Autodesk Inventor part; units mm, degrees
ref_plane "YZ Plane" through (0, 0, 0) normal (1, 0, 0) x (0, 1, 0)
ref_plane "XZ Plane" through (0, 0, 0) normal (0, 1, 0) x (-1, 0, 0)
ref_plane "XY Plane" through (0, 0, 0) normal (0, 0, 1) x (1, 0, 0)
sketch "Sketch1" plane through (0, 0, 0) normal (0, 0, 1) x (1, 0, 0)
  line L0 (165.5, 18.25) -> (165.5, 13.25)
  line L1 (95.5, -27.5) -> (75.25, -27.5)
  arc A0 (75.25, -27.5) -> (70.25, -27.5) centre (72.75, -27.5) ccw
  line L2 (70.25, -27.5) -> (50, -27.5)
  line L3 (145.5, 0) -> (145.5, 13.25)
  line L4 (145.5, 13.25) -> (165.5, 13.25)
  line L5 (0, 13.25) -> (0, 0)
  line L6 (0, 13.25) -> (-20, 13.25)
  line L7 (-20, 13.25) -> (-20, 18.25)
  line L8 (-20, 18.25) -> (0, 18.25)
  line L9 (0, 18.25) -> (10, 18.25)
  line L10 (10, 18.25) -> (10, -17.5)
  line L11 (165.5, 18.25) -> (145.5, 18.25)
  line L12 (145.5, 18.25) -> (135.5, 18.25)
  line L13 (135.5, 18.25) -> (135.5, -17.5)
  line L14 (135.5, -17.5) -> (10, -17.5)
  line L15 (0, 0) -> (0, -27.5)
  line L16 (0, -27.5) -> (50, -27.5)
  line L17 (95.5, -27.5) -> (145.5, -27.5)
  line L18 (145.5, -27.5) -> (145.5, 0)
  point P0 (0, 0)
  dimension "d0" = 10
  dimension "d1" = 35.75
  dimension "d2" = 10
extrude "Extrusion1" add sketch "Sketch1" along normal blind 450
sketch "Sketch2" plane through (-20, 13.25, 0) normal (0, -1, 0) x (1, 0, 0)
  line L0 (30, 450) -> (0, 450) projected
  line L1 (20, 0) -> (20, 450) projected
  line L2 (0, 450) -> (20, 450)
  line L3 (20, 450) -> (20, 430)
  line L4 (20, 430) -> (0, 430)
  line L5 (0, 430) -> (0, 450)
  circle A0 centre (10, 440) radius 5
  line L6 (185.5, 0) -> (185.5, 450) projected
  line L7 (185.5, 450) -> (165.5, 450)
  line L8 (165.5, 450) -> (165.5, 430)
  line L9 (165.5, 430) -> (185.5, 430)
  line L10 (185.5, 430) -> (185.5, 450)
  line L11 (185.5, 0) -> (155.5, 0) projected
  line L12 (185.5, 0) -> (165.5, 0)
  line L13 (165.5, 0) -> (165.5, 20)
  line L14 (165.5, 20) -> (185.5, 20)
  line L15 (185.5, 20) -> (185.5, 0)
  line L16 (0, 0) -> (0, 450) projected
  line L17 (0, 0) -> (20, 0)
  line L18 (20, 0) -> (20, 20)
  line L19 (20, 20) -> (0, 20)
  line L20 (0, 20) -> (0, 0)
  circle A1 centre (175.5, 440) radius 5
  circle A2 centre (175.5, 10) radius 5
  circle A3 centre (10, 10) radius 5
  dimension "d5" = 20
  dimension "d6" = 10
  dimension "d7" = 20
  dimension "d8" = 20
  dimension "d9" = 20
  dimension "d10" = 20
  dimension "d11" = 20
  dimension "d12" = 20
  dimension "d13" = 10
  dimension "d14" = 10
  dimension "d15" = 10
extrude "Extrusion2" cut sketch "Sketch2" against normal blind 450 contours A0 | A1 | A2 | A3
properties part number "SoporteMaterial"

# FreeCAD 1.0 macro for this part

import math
import FreeCAD as App
import Part
import Sketcher
from FreeCAD import Vector

doc = App.newDocument("Part")
body = doc.addObject("PartDesign::Body", "Body")

sketch1 = doc.addObject("Sketcher::SketchObject", "Sketch")
body.addObject(sketch1)
sketch1.AttachmentSupport = (doc.XY_Plane, [""])
sketch1.MapMode = "FlatFace"
sketch1.addGeometry([
    Part.LineSegment(Vector(165.5, 13.2, 0), Vector(165.5, 18.2, 0)),
    Part.LineSegment(Vector(165.5, 18.2, 0), Vector(135.5, 18.2, 0)),
    Part.LineSegment(Vector(135.5, 18.2, 0), Vector(135.5, -17.5, 0)),
    Part.LineSegment(Vector(135.5, -17.5, 0), Vector(10, -17.5, 0)),
    Part.LineSegment(Vector(10, -17.5, 0), Vector(10, 18.2, 0)),
    Part.LineSegment(Vector(10, 18.2, 0), Vector(-20, 18.2, 0)),
    Part.LineSegment(Vector(-20, 18.2, 0), Vector(-20, 13.2, 0)),
    Part.LineSegment(Vector(-20, 13.2, 0), Vector(0, 13.2, 0)),
    Part.LineSegment(Vector(0, 13.2, 0), Vector(0, -27.5, 0)),
    Part.LineSegment(Vector(0, -27.5, 0), Vector(70.2, -27.5, 0)),
    Part.ArcOfCircle(Part.Circle(Vector(72.8, -27.5, 0), Vector(0, 0, 1), 2.5), math.radians(0), math.radians(180)),
    Part.LineSegment(Vector(75.2, -27.5, 0), Vector(145.5, -27.5, 0)),
    Part.LineSegment(Vector(145.5, -27.5, 0), Vector(145.5, 13.2, 0)),
    Part.LineSegment(Vector(145.5, 13.2, 0), Vector(165.5, 13.2, 0)),
], False)
sketch1.addConstraint([
    Sketcher.Constraint("Coincident", 0, 2, 1, 1),
    Sketcher.Constraint("Coincident", 1, 2, 2, 1),
    Sketcher.Constraint("Coincident", 2, 2, 3, 1),
    Sketcher.Constraint("Coincident", 3, 2, 4, 1),
    Sketcher.Constraint("Coincident", 4, 2, 5, 1),
    Sketcher.Constraint("Coincident", 5, 2, 6, 1),
    Sketcher.Constraint("Coincident", 6, 2, 7, 1),
    Sketcher.Constraint("Coincident", 7, 2, 8, 1),
    Sketcher.Constraint("Coincident", 8, 2, 9, 1),
    Sketcher.Constraint("Coincident", 9, 2, 10, 2),
    Sketcher.Constraint("Coincident", 10, 1, 11, 1),
    Sketcher.Constraint("Coincident", 11, 2, 12, 1),
    Sketcher.Constraint("Coincident", 12, 2, 13, 1),
    Sketcher.Constraint("Coincident", 13, 2, 0, 1),
    Sketcher.Constraint("Vertical", 0),
    Sketcher.Constraint("Horizontal", 1),
    Sketcher.Constraint("Vertical", 2),
    Sketcher.Constraint("Horizontal", 3),
    Sketcher.Constraint("Vertical", 4),
    Sketcher.Constraint("Horizontal", 5),
    Sketcher.Constraint("Vertical", 6),
    Sketcher.Constraint("Horizontal", 7),
    Sketcher.Constraint("Vertical", 8),
    Sketcher.Constraint("Horizontal", 9),
    Sketcher.Constraint("Horizontal", 11),
    Sketcher.Constraint("Vertical", 12),
    Sketcher.Constraint("Horizontal", 13),
    Sketcher.Constraint("PointOnObject", 7, 2, -2),
    Sketcher.Constraint("Horizontal", 1, 2, 4, 2),
    Sketcher.Constraint("Horizontal", 10, 3, 8, 2),
    Sketcher.Constraint("Horizontal", 9, 2, 10, 1),
    Sketcher.Constraint("Horizontal", 7, 2, 12, 2),
    Sketcher.Constraint("Equal", 1, 5),
    Sketcher.Constraint("Equal", 9, 11),
    Sketcher.Constraint("Equal", 7, 13),
    Sketcher.Constraint("DistanceX", -1, 1, 3, 2, 10.0),
    Sketcher.Constraint("DistanceY", 10, 3, 2, 2, 10.0),
    Sketcher.Constraint("DistanceY", 2, 2, 2, 1, 35.75),
    Sketcher.Constraint("Radius", 10, 2.5),
    Sketcher.Constraint("DistanceX", 1, 2, 1, 1, 30.0),
    Sketcher.Constraint("DistanceY", 0, 1, 0, 2, 5.0),
    Sketcher.Constraint("DistanceX", 3, 2, 3, 1, 125.5),
    Sketcher.Constraint("DistanceY", 10, 3, -1, 1, 27.5),
])
pad1 = doc.addObject("PartDesign::Pad", "Pad")
body.addObject(pad1)
pad1.Profile = sketch1
pad1.Length = 450

sketch2 = doc.addObject("Sketcher::SketchObject", "Sketch001")
body.addObject(sketch2)
sketch2.AttachmentSupport = (doc.XZ_Plane, [""])
sketch2.MapMode = "FlatFace"
sketch2.AttachmentOffset = App.Placement(Vector(0, 0, -13.25), App.Rotation())
sketch2.addGeometry([
    Part.Circle(Vector(-10, 440, 0), Vector(0, 0, 1), 5),
    Part.Circle(Vector(156, 440, 0), Vector(0, 0, 1), 5),
    Part.Circle(Vector(156, 10, 0), Vector(0, 0, 1), 5),
    Part.Circle(Vector(-10, 10, 0), Vector(0, 0, 1), 5),
], False)
sketch2.addConstraint([
    Sketcher.Constraint("Equal", 0, 1),
    Sketcher.Constraint("Equal", 1, 2),
    Sketcher.Constraint("Equal", 2, 3),
    Sketcher.Constraint("Horizontal", 0, 3, 1, 3),
    Sketcher.Constraint("Horizontal", 2, 3, 3, 3),
    Sketcher.Constraint("Vertical", 1, 3, 2, 3),
    Sketcher.Constraint("Vertical", 0, 3, 3, 3),
    Sketcher.Constraint("Diameter", 0, 10.0),
    Sketcher.Constraint("DistanceX", 0, 3, -1, 1, 10.0),
    Sketcher.Constraint("DistanceY", -1, 1, 2, 3, 10.0),
    Sketcher.Constraint("DistanceY", -1, 1, 0, 3, 440.0),
    Sketcher.Constraint("DistanceX", -1, 1, 1, 3, 155.5),
])
pocket1 = doc.addObject("PartDesign::Pocket", "Pocket")
body.addObject(pocket1)
pocket1.Profile = sketch2
pocket1.Length = 450

doc.recompute()
